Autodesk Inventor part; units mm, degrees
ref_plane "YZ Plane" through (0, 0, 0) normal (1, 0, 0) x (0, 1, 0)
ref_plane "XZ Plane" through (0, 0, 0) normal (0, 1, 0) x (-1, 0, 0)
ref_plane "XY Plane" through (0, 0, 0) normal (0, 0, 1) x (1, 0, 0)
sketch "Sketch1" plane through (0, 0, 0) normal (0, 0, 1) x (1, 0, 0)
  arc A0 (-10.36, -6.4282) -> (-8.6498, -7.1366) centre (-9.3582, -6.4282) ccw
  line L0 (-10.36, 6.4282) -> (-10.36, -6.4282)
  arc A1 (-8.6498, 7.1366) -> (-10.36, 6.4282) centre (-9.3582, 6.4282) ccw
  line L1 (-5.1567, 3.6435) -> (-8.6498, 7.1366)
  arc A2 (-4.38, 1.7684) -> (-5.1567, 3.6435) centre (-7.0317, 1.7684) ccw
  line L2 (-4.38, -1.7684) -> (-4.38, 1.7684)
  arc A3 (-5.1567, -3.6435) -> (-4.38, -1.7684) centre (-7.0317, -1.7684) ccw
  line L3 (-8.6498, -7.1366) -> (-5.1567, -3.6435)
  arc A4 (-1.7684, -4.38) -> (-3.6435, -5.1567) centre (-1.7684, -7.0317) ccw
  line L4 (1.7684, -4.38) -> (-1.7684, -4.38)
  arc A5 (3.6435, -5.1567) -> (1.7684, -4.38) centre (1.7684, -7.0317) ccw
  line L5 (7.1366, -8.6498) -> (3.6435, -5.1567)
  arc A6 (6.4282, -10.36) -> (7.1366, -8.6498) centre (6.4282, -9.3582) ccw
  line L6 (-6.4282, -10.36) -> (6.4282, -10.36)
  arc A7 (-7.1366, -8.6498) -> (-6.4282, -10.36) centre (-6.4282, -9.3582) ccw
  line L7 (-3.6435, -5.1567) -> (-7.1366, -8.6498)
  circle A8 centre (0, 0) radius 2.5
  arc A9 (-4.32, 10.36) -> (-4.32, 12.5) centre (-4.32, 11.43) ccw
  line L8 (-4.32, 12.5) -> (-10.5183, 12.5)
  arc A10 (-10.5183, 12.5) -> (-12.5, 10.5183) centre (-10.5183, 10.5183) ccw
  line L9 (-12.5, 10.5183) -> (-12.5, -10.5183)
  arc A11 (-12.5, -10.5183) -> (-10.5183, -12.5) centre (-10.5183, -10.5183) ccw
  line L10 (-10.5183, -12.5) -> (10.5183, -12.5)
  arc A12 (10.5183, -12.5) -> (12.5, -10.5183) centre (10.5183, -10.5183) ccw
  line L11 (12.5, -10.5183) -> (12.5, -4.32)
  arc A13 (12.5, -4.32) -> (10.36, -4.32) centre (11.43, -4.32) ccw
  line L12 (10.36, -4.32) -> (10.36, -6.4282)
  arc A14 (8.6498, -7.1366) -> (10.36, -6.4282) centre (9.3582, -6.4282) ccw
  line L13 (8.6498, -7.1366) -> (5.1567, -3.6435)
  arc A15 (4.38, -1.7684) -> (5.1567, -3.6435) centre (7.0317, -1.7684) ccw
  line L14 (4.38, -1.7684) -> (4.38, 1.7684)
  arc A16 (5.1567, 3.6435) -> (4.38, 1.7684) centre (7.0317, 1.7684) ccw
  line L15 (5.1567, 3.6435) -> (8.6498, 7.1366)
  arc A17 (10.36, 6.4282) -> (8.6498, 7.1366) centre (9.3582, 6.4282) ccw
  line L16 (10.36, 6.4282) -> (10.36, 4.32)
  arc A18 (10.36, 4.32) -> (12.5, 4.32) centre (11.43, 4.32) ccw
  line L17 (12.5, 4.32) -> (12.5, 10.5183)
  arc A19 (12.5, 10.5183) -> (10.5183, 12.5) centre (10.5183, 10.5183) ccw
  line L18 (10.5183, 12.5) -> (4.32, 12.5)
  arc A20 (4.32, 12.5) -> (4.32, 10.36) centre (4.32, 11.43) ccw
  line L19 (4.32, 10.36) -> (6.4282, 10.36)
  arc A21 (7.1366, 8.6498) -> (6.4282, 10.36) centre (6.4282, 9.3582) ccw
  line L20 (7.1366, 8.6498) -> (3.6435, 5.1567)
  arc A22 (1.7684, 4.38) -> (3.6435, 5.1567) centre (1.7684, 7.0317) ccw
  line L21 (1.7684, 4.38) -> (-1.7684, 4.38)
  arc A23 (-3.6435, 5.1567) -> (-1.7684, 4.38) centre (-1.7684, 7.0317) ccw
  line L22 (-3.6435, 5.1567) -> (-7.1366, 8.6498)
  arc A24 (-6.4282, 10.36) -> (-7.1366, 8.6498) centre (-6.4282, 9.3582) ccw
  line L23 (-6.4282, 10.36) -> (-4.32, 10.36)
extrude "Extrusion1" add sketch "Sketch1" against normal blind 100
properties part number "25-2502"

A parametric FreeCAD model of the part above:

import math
import FreeCAD as App
import Part
import Sketcher
Q = App.Units.Quantity

doc = App.newDocument("Part")
body = doc.addObject("PartDesign::Body", "Body")

# Sketch on XY plane
sketch1 = body.newObject("Sketcher::SketchObject", "Sketch")
sketch1.AttachmentSupport = (doc.getObject("XY_Plane"), [""])
sketch1.MapMode = "FlatFace"
sketch1.addGeometry(Part.LineSegment(App.Vector(-6.4, 10.4, 0), App.Vector(-4.3, 10.4, 0)), False)
sketch1.addGeometry(Part.ArcOfCircle(Part.Circle(App.Vector(-4.3, 11.4, 0), App.Vector(0, 0, 1), 1.1), math.radians(-90), math.radians(90)), False)
sketch1.addGeometry(Part.LineSegment(App.Vector(-4.3, 12.5, 0), App.Vector(-10.5, 12.5, 0)), False)
sketch1.addGeometry(Part.ArcOfCircle(Part.Circle(App.Vector(-10.5, 10.5, 0), App.Vector(0, 0, 1), 2), math.radians(90), math.radians(180)), False)
sketch1.addGeometry(Part.LineSegment(App.Vector(-12.5, 10.5, 0), App.Vector(-12.5, -10.5, 0)), False)
sketch1.addGeometry(Part.ArcOfCircle(Part.Circle(App.Vector(-10.5, -10.5, 0), App.Vector(0, 0, 1), 2), math.radians(180), math.radians(270)), False)
sketch1.addGeometry(Part.LineSegment(App.Vector(-10.5, -12.5, 0), App.Vector(10.5, -12.5, 0)), False)
sketch1.addGeometry(Part.ArcOfCircle(Part.Circle(App.Vector(10.5, -10.5, 0), App.Vector(0, 0, 1), 2), math.radians(-90), math.radians(0)), False)
sketch1.addGeometry(Part.LineSegment(App.Vector(12.5, -10.5, 0), App.Vector(12.5, -4.3, 0)), False)
sketch1.addGeometry(Part.ArcOfCircle(Part.Circle(App.Vector(11.4, -4.3, 0), App.Vector(0, 0, 1), 1.1), math.radians(0), math.radians(180)), False)
sketch1.addGeometry(Part.LineSegment(App.Vector(10.4, -4.3, 0), App.Vector(10.4, -6.4, 0)), False)
sketch1.addGeometry(Part.ArcOfCircle(Part.Circle(App.Vector(9.4, -6.4, 0), App.Vector(0, 0, 1), 1), math.radians(-135), math.radians(0)), False)
sketch1.addGeometry(Part.LineSegment(App.Vector(8.6, -7.1, 0), App.Vector(5.2, -3.6, 0)), False)
sketch1.addGeometry(Part.ArcOfCircle(Part.Circle(App.Vector(7, -1.8, 0), App.Vector(0, 0, 1), 2.7), math.radians(180), math.radians(225)), False)
sketch1.addGeometry(Part.LineSegment(App.Vector(4.4, -1.8, 0), App.Vector(4.4, 1.8, 0)), False)
sketch1.addGeometry(Part.ArcOfCircle(Part.Circle(App.Vector(7, 1.8, 0), App.Vector(0, 0, 1), 2.7), math.radians(135), math.radians(180)), False)
sketch1.addGeometry(Part.LineSegment(App.Vector(5.2, 3.6, 0), App.Vector(8.6, 7.1, 0)), False)
sketch1.addGeometry(Part.ArcOfCircle(Part.Circle(App.Vector(9.4, 6.4, 0), App.Vector(0, 0, 1), 1), math.radians(0), math.radians(135)), False)
sketch1.addGeometry(Part.LineSegment(App.Vector(10.4, 6.4, 0), App.Vector(10.4, 4.3, 0)), False)
sketch1.addGeometry(Part.ArcOfCircle(Part.Circle(App.Vector(11.4, 4.3, 0), App.Vector(0, 0, 1), 1.1), math.radians(180), math.radians(360)), False)
sketch1.addGeometry(Part.LineSegment(App.Vector(12.5, 4.3, 0), App.Vector(12.5, 10.5, 0)), False)
sketch1.addGeometry(Part.ArcOfCircle(Part.Circle(App.Vector(10.5, 10.5, 0), App.Vector(0, 0, 1), 2), math.radians(0), math.radians(90)), False)
sketch1.addGeometry(Part.LineSegment(App.Vector(10.5, 12.5, 0), App.Vector(4.3, 12.5, 0)), False)
sketch1.addGeometry(Part.ArcOfCircle(Part.Circle(App.Vector(4.3, 11.4, 0), App.Vector(0, 0, 1), 1.1), math.radians(90), math.radians(270)), False)
sketch1.addGeometry(Part.LineSegment(App.Vector(4.3, 10.4, 0), App.Vector(6.4, 10.4, 0)), False)
sketch1.addGeometry(Part.ArcOfCircle(Part.Circle(App.Vector(6.4, 9.4, 0), App.Vector(0, 0, 1), 1), math.radians(-45), math.radians(90)), False)
sketch1.addGeometry(Part.LineSegment(App.Vector(7.1, 8.6, 0), App.Vector(3.6, 5.2, 0)), False)
sketch1.addGeometry(Part.ArcOfCircle(Part.Circle(App.Vector(1.8, 7, 0), App.Vector(0, 0, 1), 2.7), math.radians(-90), math.radians(-45)), False)
sketch1.addGeometry(Part.LineSegment(App.Vector(1.8, 4.4, 0), App.Vector(-1.8, 4.4, 0)), False)
sketch1.addGeometry(Part.ArcOfCircle(Part.Circle(App.Vector(-1.8, 7, 0), App.Vector(0, 0, 1), 2.7), math.radians(-135), math.radians(-90)), False)
sketch1.addGeometry(Part.LineSegment(App.Vector(-3.6, 5.2, 0), App.Vector(-7.1, 8.6, 0)), False)
sketch1.addGeometry(Part.ArcOfCircle(Part.Circle(App.Vector(-6.4, 9.4, 0), App.Vector(0, 0, 1), 1), math.radians(90), math.radians(225)), False)
sketch1.addGeometry(Part.ArcOfCircle(Part.Circle(App.Vector(-1.8, -7, 0), App.Vector(0, 0, 1), 2.7), math.radians(90), math.radians(135)), False)
sketch1.addGeometry(Part.LineSegment(App.Vector(-1.8, -4.4, 0), App.Vector(1.8, -4.4, 0)), False)
sketch1.addGeometry(Part.ArcOfCircle(Part.Circle(App.Vector(1.8, -7, 0), App.Vector(0, 0, 1), 2.7), math.radians(45), math.radians(90)), False)
sketch1.addGeometry(Part.LineSegment(App.Vector(3.6, -5.2, 0), App.Vector(7.1, -8.6, 0)), False)
sketch1.addGeometry(Part.ArcOfCircle(Part.Circle(App.Vector(6.4, -9.4, 0), App.Vector(0, 0, 1), 1), math.radians(-90), math.radians(45)), False)
sketch1.addGeometry(Part.LineSegment(App.Vector(6.4, -10.4, 0), App.Vector(-6.4, -10.4, 0)), False)
sketch1.addGeometry(Part.ArcOfCircle(Part.Circle(App.Vector(-6.4, -9.4, 0), App.Vector(0, 0, 1), 1), math.radians(135), math.radians(270)), False)
sketch1.addGeometry(Part.LineSegment(App.Vector(-7.1, -8.6, 0), App.Vector(-3.6, -5.2, 0)), False)
sketch1.addGeometry(Part.ArcOfCircle(Part.Circle(App.Vector(-9.4, -6.4, 0), App.Vector(0, 0, 1), 1), math.radians(180), math.radians(315)), False)
sketch1.addGeometry(Part.LineSegment(App.Vector(-10.4, -6.4, 0), App.Vector(-10.4, 6.4, 0)), False)
sketch1.addGeometry(Part.ArcOfCircle(Part.Circle(App.Vector(-9.4, 6.4, 0), App.Vector(0, 0, 1), 1), math.radians(45), math.radians(180)), False)
sketch1.addGeometry(Part.LineSegment(App.Vector(-8.6, 7.1, 0), App.Vector(-5.2, 3.6, 0)), False)
sketch1.addGeometry(Part.ArcOfCircle(Part.Circle(App.Vector(-7, 1.8, 0), App.Vector(0, 0, 1), 2.7), math.radians(0), math.radians(45)), False)
sketch1.addGeometry(Part.LineSegment(App.Vector(-4.4, 1.8, 0), App.Vector(-4.4, -1.8, 0)), False)
sketch1.addGeometry(Part.ArcOfCircle(Part.Circle(App.Vector(-7, -1.8, 0), App.Vector(0, 0, 1), 2.7), math.radians(-45), math.radians(0)), False)
sketch1.addGeometry(Part.LineSegment(App.Vector(-5.2, -3.6, 0), App.Vector(-8.6, -7.1, 0)), False)
sketch1.addGeometry(Part.Circle(App.Vector(0, 0, 0), App.Vector(0, 0, 1), 2.5), False)
sketch1.addConstraint(Sketcher.Constraint("Tangent", 0, 2, 1, 1))
sketch1.addConstraint(Sketcher.Constraint("Tangent", 1, 2, 2, 1))
sketch1.addConstraint(Sketcher.Constraint("Tangent", 2, 2, 3, 1))
sketch1.addConstraint(Sketcher.Constraint("Tangent", 3, 2, 4, 1))
sketch1.addConstraint(Sketcher.Constraint("Tangent", 4, 2, 5, 1))
sketch1.addConstraint(Sketcher.Constraint("Tangent", 5, 2, 6, 1))
sketch1.addConstraint(Sketcher.Constraint("Tangent", 6, 2, 7, 1))
sketch1.addConstraint(Sketcher.Constraint("Tangent", 7, 2, 8, 1))
sketch1.addConstraint(Sketcher.Constraint("Tangent", 8, 2, 9, 1))
sketch1.addConstraint(Sketcher.Constraint("Tangent", 9, 2, 10, 1))
sketch1.addConstraint(Sketcher.Constraint("Tangent", 10, 2, 11, 2))
sketch1.addConstraint(Sketcher.Constraint("Tangent", 11, 1, 12, 1))
sketch1.addConstraint(Sketcher.Constraint("Tangent", 12, 2, 13, 2))
sketch1.addConstraint(Sketcher.Constraint("Tangent", 13, 1, 14, 1))
sketch1.addConstraint(Sketcher.Constraint("Tangent", 14, 2, 15, 2))
sketch1.addConstraint(Sketcher.Constraint("Tangent", 15, 1, 16, 1))
sketch1.addConstraint(Sketcher.Constraint("Tangent", 16, 2, 17, 2))
sketch1.addConstraint(Sketcher.Constraint("Tangent", 17, 1, 18, 1))
sketch1.addConstraint(Sketcher.Constraint("Tangent", 18, 2, 19, 1))
sketch1.addConstraint(Sketcher.Constraint("Tangent", 19, 2, 20, 1))
sketch1.addConstraint(Sketcher.Constraint("Tangent", 20, 2, 21, 1))
sketch1.addConstraint(Sketcher.Constraint("Tangent", 21, 2, 22, 1))
sketch1.addConstraint(Sketcher.Constraint("Tangent", 22, 2, 23, 1))
sketch1.addConstraint(Sketcher.Constraint("Tangent", 23, 2, 24, 1))
sketch1.addConstraint(Sketcher.Constraint("Tangent", 24, 2, 25, 2))
sketch1.addConstraint(Sketcher.Constraint("Tangent", 25, 1, 26, 1))
sketch1.addConstraint(Sketcher.Constraint("Tangent", 26, 2, 27, 2))
sketch1.addConstraint(Sketcher.Constraint("Tangent", 27, 1, 28, 1))
sketch1.addConstraint(Sketcher.Constraint("Tangent", 28, 2, 29, 2))
sketch1.addConstraint(Sketcher.Constraint("Tangent", 29, 1, 30, 1))
sketch1.addConstraint(Sketcher.Constraint("Tangent", 30, 2, 31, 2))
sketch1.addConstraint(Sketcher.Constraint("Tangent", 31, 1, 0, 1))
sketch1.addConstraint(Sketcher.Constraint("Tangent", 32, 1, 33, 1))
sketch1.addConstraint(Sketcher.Constraint("Tangent", 33, 2, 34, 2))
sketch1.addConstraint(Sketcher.Constraint("Tangent", 34, 1, 35, 1))
sketch1.addConstraint(Sketcher.Constraint("Tangent", 35, 2, 36, 2))
sketch1.addConstraint(Sketcher.Constraint("Tangent", 36, 1, 37, 1))
sketch1.addConstraint(Sketcher.Constraint("Tangent", 37, 2, 38, 2))
sketch1.addConstraint(Sketcher.Constraint("Tangent", 38, 1, 39, 1))
sketch1.addConstraint(Sketcher.Constraint("Tangent", 39, 2, 32, 2))
sketch1.addConstraint(Sketcher.Constraint("Tangent", 40, 1, 41, 1))
sketch1.addConstraint(Sketcher.Constraint("Tangent", 41, 2, 42, 2))
sketch1.addConstraint(Sketcher.Constraint("Tangent", 42, 1, 43, 1))
sketch1.addConstraint(Sketcher.Constraint("Tangent", 43, 2, 44, 2))
sketch1.addConstraint(Sketcher.Constraint("Tangent", 44, 1, 45, 1))
sketch1.addConstraint(Sketcher.Constraint("Tangent", 45, 2, 46, 2))
sketch1.addConstraint(Sketcher.Constraint("Tangent", 46, 1, 47, 1))
sketch1.addConstraint(Sketcher.Constraint("Tangent", 47, 2, 40, 2))
sketch1.addConstraint(Sketcher.Constraint("Horizontal", 0))
sketch1.addConstraint(Sketcher.Constraint("Horizontal", 2))
sketch1.addConstraint(Sketcher.Constraint("Vertical", 4))
sketch1.addConstraint(Sketcher.Constraint("Horizontal", 6))
sketch1.addConstraint(Sketcher.Constraint("Vertical", 8))
sketch1.addConstraint(Sketcher.Constraint("Vertical", 10))
sketch1.addConstraint(Sketcher.Constraint("Vertical", 14))
sketch1.addConstraint(Sketcher.Constraint("Vertical", 18))
sketch1.addConstraint(Sketcher.Constraint("Vertical", 20))
sketch1.addConstraint(Sketcher.Constraint("Horizontal", 22))
sketch1.addConstraint(Sketcher.Constraint("Horizontal", 24))
sketch1.addConstraint(Sketcher.Constraint("Horizontal", 28))
sketch1.addConstraint(Sketcher.Constraint("Horizontal", 33))
sketch1.addConstraint(Sketcher.Constraint("Horizontal", 37))
sketch1.addConstraint(Sketcher.Constraint("Vertical", 41))
sketch1.addConstraint(Sketcher.Constraint("Vertical", 45))
sketch1.addConstraint(Sketcher.Constraint("Coincident", 48, 3, -1, 1))
sketch1.addConstraint(Sketcher.Constraint("Equal", 3, 5))
sketch1.addConstraint(Sketcher.Constraint("Equal", 5, 7))
sketch1.addConstraint(Sketcher.Constraint("Equal", 1, 9))
sketch1.addConstraint(Sketcher.Constraint("Equal", 13, 15))
sketch1.addConstraint(Sketcher.Constraint("Equal", 11, 17))
sketch1.addConstraint(Sketcher.Constraint("Equal", 9, 19))
sketch1.addConstraint(Sketcher.Constraint("Equal", 7, 21))
sketch1.addConstraint(Sketcher.Constraint("Equal", 19, 23))
sketch1.addConstraint(Sketcher.Constraint("Equal", 17, 25))
sketch1.addConstraint(Sketcher.Constraint("Equal", 15, 27))
sketch1.addConstraint(Sketcher.Constraint("Equal", 27, 29))
sketch1.addConstraint(Sketcher.Constraint("Equal", 25, 31))
sketch1.addConstraint(Sketcher.Constraint("Equal", 29, 32))
sketch1.addConstraint(Sketcher.Constraint("Equal", 32, 34))
sketch1.addConstraint(Sketcher.Constraint("Equal", 31, 36))
sketch1.addConstraint(Sketcher.Constraint("Equal", 36, 38))
sketch1.addConstraint(Sketcher.Constraint("Equal", 38, 40))
sketch1.addConstraint(Sketcher.Constraint("Equal", 40, 42))
sketch1.addConstraint(Sketcher.Constraint("Equal", 34, 44))
sketch1.addConstraint(Sketcher.Constraint("Equal", 44, 46))
sketch1.addConstraint(Sketcher.Constraint("Symmetric", 3, 3, 7, 3, -1, 1))
sketch1.addConstraint(Sketcher.Constraint("Symmetric", 5, 3, 21, 3, -1, 1))
sketch1.addConstraint(Sketcher.Constraint("Symmetric", 27, 3, 32, 3, -1, 1))
sketch1.addConstraint(Sketcher.Constraint("Symmetric", 31, 3, 36, 3, -1, 1))
sketch1.addConstraint(Sketcher.Constraint("Symmetric", 17, 3, 40, 3, -1, 1))
sketch1.addConstraint(Sketcher.Constraint("Symmetric", 13, 3, 44, 3, -1, 1))
sketch1.addConstraint(Sketcher.Constraint("Symmetric", 26, 2, 29, 1, -2))
sketch1.addConstraint(Sketcher.Constraint("Symmetric", 35, 2, 38, 1, -2))
sketch1.addConstraint(Sketcher.Constraint("Symmetric", 16, 2, 42, 1, -2))
sketch1.addConstraint(Sketcher.Constraint("Symmetric", 12, 2, 46, 1, -2))
sketch1.addConstraint(Sketcher.Constraint("Perpendicular", 12, 16))
sketch1.addConstraint(Sketcher.Constraint("Parallel", 16, 26))
sketch1.addConstraint(Sketcher.Constraint("Equal", 2, 22))
sketch1.addConstraint(Sketcher.Constraint("Equal", 6, 4))
sketch1.addConstraint(Sketcher.Constraint("Equal", 22, 8))
sketch1.addConstraint(Sketcher.Constraint("Equal", 24, 10))
sketch1.addConstraint(Sketcher.Constraint("Equal", 33, 14))
sketch1.addConstraint(Sketcher.Constraint("Equal", 10, 18))
sketch1.addConstraint(Sketcher.Constraint("Radius", 13, Q("0.1044 in")))
sketch1.addConstraint(Sketcher.Constraint("Diameter", 48, Q("5 mm")))
sketch1.addConstraint(Sketcher.Constraint("DistanceX", 0, 1, 0, 2, Q("0.083 in")))
sketch1.addConstraint(Sketcher.Constraint("DistanceY", -1, 1, 1, 3, Q("0.45 in")))
sketch1.addConstraint(Sketcher.Constraint("Radius", 1, Q("1.07 mm")))
sketch1.addConstraint(Sketcher.Constraint("Radius", 3, Q("1.9817 mm")))
sketch1.addConstraint(Sketcher.Constraint("Radius", 11, Q("1.0018 mm")))
sketch1.addConstraint(Sketcher.Constraint("DistanceX", 2, 2, 2, 1, Q("6.1983 mm")))
sketch1.addConstraint(Sketcher.Constraint("DistanceX", 28, 2, 28, 1, Q("3.5368 mm")))
pad1 = body.newObject("PartDesign::Pad", "Pad")
pad1.Profile = sketch1
pad1.Length = Q("3.9370079 in")
pad1.Reversed = True

doc.recompute()
